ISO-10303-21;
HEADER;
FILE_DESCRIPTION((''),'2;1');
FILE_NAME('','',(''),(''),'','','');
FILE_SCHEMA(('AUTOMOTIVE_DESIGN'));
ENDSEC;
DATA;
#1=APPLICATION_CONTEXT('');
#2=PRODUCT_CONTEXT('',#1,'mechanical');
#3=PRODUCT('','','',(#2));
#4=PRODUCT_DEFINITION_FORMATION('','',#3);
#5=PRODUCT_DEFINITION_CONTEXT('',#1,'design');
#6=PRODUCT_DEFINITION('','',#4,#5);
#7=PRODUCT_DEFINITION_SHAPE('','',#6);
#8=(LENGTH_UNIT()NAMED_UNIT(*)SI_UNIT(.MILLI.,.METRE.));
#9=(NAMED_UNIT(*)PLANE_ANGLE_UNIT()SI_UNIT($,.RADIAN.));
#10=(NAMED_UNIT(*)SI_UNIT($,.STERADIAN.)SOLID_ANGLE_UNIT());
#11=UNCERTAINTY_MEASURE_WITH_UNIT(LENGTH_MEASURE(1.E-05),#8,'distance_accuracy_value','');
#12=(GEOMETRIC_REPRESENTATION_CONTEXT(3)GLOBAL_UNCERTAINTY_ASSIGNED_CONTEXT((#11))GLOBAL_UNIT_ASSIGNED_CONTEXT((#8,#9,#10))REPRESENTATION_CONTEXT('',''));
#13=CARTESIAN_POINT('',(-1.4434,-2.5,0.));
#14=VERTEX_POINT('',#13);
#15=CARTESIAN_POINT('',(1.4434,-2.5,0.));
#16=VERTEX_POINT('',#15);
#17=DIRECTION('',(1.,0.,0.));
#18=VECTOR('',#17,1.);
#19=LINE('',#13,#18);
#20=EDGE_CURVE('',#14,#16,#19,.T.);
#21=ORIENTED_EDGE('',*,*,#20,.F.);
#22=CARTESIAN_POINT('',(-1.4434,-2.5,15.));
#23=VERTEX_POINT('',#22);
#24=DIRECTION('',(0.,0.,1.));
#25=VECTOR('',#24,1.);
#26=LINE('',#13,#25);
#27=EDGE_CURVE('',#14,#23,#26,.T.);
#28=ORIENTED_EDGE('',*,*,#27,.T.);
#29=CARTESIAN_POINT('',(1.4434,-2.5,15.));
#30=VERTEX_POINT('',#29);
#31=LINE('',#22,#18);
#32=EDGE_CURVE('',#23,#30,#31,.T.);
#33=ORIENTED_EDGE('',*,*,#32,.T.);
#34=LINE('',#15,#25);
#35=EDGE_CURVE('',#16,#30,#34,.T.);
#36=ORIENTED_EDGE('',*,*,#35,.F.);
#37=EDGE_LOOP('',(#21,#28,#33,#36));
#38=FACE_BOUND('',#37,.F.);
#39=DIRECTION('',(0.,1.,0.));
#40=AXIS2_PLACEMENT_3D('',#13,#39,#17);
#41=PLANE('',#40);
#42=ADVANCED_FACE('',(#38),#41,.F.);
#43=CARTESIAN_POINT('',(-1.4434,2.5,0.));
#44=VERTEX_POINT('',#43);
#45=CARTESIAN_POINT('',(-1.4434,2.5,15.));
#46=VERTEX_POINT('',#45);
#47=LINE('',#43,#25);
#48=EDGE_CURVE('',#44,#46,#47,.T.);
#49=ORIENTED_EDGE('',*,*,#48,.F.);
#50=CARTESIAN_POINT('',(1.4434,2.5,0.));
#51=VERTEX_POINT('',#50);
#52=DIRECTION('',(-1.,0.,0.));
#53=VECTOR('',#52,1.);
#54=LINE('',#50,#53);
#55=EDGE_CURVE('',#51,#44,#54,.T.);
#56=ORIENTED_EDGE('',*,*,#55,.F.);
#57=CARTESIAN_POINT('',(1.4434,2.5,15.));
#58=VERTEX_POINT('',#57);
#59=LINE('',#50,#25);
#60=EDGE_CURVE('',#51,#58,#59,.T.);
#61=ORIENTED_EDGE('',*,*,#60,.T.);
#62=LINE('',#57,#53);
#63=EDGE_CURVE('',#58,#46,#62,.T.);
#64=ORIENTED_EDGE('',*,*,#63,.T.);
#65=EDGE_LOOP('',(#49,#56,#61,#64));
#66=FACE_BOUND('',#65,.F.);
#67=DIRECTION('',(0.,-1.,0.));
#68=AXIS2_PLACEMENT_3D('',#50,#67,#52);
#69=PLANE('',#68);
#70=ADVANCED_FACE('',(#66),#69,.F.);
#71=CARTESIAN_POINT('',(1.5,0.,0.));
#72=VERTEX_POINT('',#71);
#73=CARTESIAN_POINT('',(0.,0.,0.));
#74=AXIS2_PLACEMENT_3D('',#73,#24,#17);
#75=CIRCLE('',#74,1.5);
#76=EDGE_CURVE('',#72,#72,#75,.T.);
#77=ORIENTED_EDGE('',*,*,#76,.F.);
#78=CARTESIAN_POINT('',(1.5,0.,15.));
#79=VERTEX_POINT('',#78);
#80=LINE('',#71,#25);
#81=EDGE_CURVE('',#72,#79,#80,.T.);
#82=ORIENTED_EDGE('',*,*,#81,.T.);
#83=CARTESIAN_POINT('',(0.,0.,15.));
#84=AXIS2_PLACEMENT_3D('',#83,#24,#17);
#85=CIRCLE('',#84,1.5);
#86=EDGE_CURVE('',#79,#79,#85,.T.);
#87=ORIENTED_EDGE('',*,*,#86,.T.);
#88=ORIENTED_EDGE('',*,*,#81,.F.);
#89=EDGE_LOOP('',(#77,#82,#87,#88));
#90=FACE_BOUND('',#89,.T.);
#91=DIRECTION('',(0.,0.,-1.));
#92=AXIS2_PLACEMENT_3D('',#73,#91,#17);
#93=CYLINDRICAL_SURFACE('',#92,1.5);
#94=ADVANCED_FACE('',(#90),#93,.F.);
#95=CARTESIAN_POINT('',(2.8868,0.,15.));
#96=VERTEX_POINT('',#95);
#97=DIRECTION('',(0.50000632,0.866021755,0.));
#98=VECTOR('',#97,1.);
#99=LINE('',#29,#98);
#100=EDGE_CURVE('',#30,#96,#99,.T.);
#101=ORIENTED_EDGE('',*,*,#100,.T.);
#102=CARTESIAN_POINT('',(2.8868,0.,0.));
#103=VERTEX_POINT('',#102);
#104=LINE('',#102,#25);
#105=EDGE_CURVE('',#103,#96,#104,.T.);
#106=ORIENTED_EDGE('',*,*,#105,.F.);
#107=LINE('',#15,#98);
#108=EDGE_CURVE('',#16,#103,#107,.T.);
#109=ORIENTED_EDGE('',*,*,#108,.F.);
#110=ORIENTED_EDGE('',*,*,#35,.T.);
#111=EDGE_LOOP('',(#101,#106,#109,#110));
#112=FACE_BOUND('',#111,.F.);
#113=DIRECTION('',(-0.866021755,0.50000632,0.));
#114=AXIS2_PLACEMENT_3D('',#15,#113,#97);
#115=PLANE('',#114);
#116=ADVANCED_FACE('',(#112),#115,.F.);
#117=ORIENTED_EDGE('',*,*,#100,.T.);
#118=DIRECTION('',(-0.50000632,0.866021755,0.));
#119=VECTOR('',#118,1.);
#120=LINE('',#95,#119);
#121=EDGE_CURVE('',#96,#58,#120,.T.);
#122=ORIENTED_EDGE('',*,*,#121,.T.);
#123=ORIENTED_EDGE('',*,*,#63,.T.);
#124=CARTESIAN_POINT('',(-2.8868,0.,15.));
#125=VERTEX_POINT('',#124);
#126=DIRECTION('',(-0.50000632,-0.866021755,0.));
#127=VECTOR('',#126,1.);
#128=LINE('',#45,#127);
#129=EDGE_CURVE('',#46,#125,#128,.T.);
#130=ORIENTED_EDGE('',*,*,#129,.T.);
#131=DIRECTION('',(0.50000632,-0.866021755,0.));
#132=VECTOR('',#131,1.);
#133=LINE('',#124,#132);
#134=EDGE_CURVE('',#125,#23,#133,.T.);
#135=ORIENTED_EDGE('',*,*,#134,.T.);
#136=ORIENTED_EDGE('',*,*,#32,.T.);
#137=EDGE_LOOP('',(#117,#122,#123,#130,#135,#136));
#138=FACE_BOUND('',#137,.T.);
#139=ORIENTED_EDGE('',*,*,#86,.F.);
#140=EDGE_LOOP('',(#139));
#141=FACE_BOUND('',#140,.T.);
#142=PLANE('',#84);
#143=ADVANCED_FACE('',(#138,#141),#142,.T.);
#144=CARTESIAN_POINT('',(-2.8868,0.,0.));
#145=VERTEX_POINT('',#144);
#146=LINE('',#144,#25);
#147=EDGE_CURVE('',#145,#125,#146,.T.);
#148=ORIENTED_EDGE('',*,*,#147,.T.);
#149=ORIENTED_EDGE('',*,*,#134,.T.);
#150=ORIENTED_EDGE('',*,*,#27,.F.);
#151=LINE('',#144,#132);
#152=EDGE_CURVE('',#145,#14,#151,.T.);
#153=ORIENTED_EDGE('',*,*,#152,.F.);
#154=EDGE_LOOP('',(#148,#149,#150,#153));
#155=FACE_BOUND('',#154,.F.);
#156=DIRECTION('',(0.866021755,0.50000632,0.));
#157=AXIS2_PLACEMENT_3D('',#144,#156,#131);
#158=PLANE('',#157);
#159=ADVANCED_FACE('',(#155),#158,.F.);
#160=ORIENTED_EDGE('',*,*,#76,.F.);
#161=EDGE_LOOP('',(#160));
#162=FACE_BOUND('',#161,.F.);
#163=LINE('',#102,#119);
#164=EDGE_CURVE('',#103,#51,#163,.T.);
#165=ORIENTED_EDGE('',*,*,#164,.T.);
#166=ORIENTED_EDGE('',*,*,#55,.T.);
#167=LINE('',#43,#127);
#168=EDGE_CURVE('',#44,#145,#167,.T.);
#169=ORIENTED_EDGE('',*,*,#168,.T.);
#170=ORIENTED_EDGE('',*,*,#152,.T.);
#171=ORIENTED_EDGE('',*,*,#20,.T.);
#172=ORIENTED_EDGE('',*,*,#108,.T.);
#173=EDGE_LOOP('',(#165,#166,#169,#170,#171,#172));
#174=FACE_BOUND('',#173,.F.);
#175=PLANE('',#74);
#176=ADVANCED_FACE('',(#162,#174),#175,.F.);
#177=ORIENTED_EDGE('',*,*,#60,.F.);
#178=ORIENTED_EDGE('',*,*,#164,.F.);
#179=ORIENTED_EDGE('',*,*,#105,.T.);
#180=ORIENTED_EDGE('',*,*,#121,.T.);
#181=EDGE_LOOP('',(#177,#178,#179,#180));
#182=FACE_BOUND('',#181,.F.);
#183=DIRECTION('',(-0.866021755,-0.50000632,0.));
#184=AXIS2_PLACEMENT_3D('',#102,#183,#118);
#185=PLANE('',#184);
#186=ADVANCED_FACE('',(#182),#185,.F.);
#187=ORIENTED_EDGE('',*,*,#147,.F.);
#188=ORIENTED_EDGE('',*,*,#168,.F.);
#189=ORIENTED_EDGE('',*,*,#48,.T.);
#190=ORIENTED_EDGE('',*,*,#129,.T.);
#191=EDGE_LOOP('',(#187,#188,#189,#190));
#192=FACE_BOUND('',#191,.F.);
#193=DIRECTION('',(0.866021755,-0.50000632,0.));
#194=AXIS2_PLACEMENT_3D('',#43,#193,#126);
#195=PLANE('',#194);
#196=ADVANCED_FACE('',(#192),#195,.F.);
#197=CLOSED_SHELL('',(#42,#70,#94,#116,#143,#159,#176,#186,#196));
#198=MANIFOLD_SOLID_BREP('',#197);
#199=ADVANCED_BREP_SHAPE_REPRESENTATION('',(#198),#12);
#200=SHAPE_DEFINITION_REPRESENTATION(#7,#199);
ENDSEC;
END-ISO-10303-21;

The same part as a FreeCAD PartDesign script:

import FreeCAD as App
import Part
import Sketcher

V = App.Vector
Q = App.Units.Quantity

doc = App.newDocument("Part")
body = doc.addObject("PartDesign::Body", "Body")

# Sketch on XY plane
sketch1 = body.newObject("Sketcher::SketchObject", "Sketch")
sketch1.AttachmentSupport = (doc.getObject("XY_Plane"), [""])
sketch1.MapMode = "FlatFace"
sketch1.addGeometry([
    Part.LineSegment(V(1.4, 2.5, 0), V(-1.4, 2.5, 0)),  # 0
    Part.LineSegment(V(-1.4, 2.5, 0), V(-2.9, 0, 0)),  # 1
    Part.LineSegment(V(-2.9, 0, 0), V(-1.4, -2.5, 0)),  # 2
    Part.LineSegment(V(-1.4, -2.5, 0), V(1.4, -2.5, 0)),  # 3
    Part.LineSegment(V(1.4, -2.5, 0), V(2.9, 0, 0)),  # 4
    Part.LineSegment(V(2.9, 0, 0), V(1.4, 2.5, 0)),  # 5
    Part.Circle(V(0, 0, 0), V(0, 0, 1), 1.5),  # 6
], False)
sketch1.addConstraint([
    Sketcher.Constraint("Coincident", 0, 2, 1, 1),
    Sketcher.Constraint("Coincident", 1, 2, 2, 1),
    Sketcher.Constraint("Coincident", 2, 2, 3, 1),
    Sketcher.Constraint("Coincident", 3, 2, 4, 1),
    Sketcher.Constraint("Coincident", 4, 2, 5, 1),
    Sketcher.Constraint("Coincident", 5, 2, 0, 1),
    Sketcher.Constraint("Horizontal", 0),
    Sketcher.Constraint("Horizontal", 3),
    Sketcher.Constraint("Coincident", 6, 3, -1, 1),
    Sketcher.Constraint("Symmetric", 0, 2, 3, 2, -1, 1),
    Sketcher.Constraint("Symmetric", 1, 2, 4, 2, -1, 1),
    Sketcher.Constraint("PointOnObject", 1, 2, -1),
    Sketcher.Constraint("Parallel", 2, 5),
    Sketcher.Constraint("Vertical", 0, 2, 2, 2),
    Sketcher.Constraint("Diameter", 6, 3.0),
    Sketcher.Constraint("Angle", 1, Q("-120.0004 deg")),
    Sketcher.Constraint("DistanceY", 2, 2, 0, 2, 5.0),
    Sketcher.Constraint("DistanceX", 0, 2, 0, 1, 2.8868),
])
pad1 = body.newObject("PartDesign::Pad", "Pad")
pad1.Profile = sketch1
pad1.Length = 15

doc.recompute()
